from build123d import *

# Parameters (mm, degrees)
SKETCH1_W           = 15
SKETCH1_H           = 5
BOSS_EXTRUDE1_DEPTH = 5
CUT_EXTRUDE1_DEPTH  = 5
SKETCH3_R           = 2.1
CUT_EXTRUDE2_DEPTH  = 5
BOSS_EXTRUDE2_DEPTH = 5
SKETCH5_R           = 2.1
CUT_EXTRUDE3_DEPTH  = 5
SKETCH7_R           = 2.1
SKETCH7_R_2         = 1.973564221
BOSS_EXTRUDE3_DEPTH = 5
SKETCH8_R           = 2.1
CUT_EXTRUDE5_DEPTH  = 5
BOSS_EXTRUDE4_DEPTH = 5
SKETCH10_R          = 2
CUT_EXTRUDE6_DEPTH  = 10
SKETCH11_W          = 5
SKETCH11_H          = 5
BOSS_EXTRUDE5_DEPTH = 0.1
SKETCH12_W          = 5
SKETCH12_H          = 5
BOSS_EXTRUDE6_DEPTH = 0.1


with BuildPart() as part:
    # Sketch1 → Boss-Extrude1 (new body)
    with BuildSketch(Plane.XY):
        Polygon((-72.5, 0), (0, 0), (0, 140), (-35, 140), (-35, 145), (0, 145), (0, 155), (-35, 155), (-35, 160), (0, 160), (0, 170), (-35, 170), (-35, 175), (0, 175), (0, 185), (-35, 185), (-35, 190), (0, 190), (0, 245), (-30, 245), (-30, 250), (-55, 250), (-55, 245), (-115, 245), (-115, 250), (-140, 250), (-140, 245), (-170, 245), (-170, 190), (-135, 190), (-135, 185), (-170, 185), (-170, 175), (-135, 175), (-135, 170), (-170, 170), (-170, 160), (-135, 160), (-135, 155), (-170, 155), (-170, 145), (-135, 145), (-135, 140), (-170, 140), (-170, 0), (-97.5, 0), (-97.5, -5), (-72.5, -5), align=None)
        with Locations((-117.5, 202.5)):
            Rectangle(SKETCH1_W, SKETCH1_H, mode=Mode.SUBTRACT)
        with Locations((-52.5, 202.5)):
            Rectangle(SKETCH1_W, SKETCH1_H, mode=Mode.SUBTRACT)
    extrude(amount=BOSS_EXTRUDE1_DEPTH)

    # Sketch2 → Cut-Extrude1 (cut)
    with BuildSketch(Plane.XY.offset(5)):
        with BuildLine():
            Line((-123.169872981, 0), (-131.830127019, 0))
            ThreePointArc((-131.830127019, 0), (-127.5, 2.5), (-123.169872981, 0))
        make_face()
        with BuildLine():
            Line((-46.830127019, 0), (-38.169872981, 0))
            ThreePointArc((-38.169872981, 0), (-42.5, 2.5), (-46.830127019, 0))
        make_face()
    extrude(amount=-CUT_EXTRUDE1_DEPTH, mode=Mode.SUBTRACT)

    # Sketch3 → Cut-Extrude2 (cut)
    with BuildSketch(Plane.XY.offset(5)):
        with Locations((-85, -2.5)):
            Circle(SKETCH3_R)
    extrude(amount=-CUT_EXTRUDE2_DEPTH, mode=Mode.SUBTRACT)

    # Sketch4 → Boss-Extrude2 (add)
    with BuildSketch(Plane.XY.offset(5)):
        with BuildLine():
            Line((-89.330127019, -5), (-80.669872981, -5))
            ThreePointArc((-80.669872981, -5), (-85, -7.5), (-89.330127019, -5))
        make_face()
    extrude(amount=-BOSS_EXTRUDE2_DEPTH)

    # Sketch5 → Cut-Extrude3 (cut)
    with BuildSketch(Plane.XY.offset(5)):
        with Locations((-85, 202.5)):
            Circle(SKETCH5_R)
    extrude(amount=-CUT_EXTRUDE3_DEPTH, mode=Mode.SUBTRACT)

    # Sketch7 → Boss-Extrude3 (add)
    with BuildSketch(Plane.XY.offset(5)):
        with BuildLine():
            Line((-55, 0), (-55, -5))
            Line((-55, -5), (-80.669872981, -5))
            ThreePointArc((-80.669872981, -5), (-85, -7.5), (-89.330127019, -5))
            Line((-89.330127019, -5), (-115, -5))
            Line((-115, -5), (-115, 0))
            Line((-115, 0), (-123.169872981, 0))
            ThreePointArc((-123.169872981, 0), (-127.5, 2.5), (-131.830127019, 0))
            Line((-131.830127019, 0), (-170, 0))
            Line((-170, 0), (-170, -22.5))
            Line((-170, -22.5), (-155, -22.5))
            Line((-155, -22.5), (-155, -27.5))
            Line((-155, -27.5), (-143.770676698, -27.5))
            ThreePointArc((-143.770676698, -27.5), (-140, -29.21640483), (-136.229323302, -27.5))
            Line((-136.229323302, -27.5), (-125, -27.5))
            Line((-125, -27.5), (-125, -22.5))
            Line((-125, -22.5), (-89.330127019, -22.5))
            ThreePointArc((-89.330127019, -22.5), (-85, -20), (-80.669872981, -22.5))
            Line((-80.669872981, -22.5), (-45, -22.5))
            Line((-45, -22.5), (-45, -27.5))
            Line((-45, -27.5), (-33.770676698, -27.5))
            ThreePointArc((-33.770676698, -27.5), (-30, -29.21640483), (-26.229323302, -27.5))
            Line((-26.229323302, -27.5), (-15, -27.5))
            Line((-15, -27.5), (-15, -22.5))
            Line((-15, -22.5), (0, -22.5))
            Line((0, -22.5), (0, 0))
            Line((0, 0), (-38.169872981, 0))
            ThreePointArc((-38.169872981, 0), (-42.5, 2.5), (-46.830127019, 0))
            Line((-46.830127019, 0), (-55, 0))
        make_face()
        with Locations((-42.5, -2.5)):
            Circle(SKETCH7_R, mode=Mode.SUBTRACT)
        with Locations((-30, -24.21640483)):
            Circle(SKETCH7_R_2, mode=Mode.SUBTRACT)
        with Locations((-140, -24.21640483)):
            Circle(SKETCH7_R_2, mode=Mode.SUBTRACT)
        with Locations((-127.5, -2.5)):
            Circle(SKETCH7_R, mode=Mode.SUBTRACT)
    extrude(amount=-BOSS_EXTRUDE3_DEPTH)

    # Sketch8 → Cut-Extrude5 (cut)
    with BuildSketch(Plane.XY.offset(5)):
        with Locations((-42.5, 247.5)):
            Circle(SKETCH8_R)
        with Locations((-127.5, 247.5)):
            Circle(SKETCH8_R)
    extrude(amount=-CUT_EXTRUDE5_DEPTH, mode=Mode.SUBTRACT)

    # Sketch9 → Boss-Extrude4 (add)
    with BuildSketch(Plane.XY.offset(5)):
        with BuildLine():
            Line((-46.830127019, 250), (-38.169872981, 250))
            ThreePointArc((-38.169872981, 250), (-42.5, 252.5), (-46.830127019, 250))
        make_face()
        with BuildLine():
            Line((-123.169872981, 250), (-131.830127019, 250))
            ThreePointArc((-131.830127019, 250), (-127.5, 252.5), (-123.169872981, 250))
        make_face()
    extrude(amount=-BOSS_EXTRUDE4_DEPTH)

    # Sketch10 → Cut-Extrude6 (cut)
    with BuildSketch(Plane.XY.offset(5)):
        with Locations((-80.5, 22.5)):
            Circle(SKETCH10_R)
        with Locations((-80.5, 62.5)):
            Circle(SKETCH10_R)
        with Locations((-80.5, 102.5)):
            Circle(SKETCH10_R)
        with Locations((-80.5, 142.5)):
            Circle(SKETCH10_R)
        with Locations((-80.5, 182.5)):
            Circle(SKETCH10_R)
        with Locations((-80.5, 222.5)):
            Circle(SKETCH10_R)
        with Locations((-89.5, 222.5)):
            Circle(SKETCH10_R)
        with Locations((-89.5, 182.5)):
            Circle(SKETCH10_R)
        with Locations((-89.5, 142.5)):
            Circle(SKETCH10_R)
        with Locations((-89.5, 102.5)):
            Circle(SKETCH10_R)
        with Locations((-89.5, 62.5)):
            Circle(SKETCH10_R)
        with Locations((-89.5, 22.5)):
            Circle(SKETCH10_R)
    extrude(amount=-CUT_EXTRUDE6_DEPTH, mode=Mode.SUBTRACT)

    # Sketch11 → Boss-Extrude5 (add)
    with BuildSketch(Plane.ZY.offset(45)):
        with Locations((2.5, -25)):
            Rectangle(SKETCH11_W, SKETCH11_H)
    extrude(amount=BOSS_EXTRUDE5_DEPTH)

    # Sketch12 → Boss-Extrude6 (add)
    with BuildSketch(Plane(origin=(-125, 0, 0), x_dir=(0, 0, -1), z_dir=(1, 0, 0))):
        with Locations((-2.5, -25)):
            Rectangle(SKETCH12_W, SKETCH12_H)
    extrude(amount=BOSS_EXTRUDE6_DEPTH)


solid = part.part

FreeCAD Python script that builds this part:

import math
import FreeCAD as App
import Part
import Sketcher

V = App.Vector
Q = App.Units.Quantity

doc = App.newDocument("Part")
body = doc.addObject("PartDesign::Body", "Body")

# Sketch on XY plane
sketch1 = doc.addObject("Sketcher::SketchObject", "Sketch")
body.addObject(sketch1)
sketch1.AttachmentSupport = (doc.XY_Plane, [""])
sketch1.MapMode = "FlatFace"
sketch1.addGeometry(Part.LineSegment(V(-72, 0, 0), V(0, 0, 0)), False)
sketch1.addGeometry(Part.LineSegment(V(0, 0, 0), V(0, 140, 0)), False)
sketch1.addGeometry(Part.LineSegment(V(0, 140, 0), V(-35, 140, 0)), False)
sketch1.addGeometry(Part.LineSegment(V(-35, 140, 0), V(-35, 145, 0)), False)
sketch1.addGeometry(Part.LineSegment(V(-35, 145, 0), V(0, 145, 0)), False)
sketch1.addGeometry(Part.LineSegment(V(0, 145, 0), V(0, 155, 0)), False)
sketch1.addGeometry(Part.LineSegment(V(0, 155, 0), V(-35, 155, 0)), False)
sketch1.addGeometry(Part.LineSegment(V(-35, 155, 0), V(-35, 160, 0)), False)
sketch1.addGeometry(Part.LineSegment(V(-35, 160, 0), V(0, 160, 0)), False)
sketch1.addGeometry(Part.LineSegment(V(0, 160, 0), V(0, 170, 0)), False)
sketch1.addGeometry(Part.LineSegment(V(0, 170, 0), V(-35, 170, 0)), False)
sketch1.addGeometry(Part.LineSegment(V(-35, 170, 0), V(-35, 175, 0)), False)
sketch1.addGeometry(Part.LineSegment(V(-35, 175, 0), V(0, 175, 0)), False)
sketch1.addGeometry(Part.LineSegment(V(0, 175, 0), V(0, 185, 0)), False)
sketch1.addGeometry(Part.LineSegment(V(0, 185, 0), V(-35, 185, 0)), False)
sketch1.addGeometry(Part.LineSegment(V(-35, 185, 0), V(-35, 190, 0)), False)
sketch1.addGeometry(Part.LineSegment(V(-35, 190, 0), V(0, 190, 0)), False)
sketch1.addGeometry(Part.LineSegment(V(0, 190, 0), V(0, 245, 0)), False)
sketch1.addGeometry(Part.LineSegment(V(0, 245, 0), V(-30, 245, 0)), False)
sketch1.addGeometry(Part.LineSegment(V(-30, 245, 0), V(-30, 250, 0)), False)
sketch1.addGeometry(Part.LineSegment(V(-30, 250, 0), V(-55, 250, 0)), False)
sketch1.addGeometry(Part.LineSegment(V(-55, 250, 0), V(-55, 245, 0)), False)
sketch1.addGeometry(Part.LineSegment(V(-55, 245, 0), V(-115, 245, 0)), False)
sketch1.addGeometry(Part.LineSegment(V(-115, 245, 0), V(-115, 250, 0)), False)
sketch1.addGeometry(Part.LineSegment(V(-115, 250, 0), V(-140, 250, 0)), False)
sketch1.addGeometry(Part.LineSegment(V(-140, 250, 0), V(-140, 245, 0)), False)
sketch1.addGeometry(Part.LineSegment(V(-140, 245, 0), V(-170, 245, 0)), False)
sketch1.addGeometry(Part.LineSegment(V(-170, 245, 0), V(-170, 190, 0)), False)
sketch1.addGeometry(Part.LineSegment(V(-170, 190, 0), V(-135, 190, 0)), False)
sketch1.addGeometry(Part.LineSegment(V(-135, 190, 0), V(-135, 185, 0)), False)
sketch1.addGeometry(Part.LineSegment(V(-135, 185, 0), V(-170, 185, 0)), False)
sketch1.addGeometry(Part.LineSegment(V(-170, 185, 0), V(-170, 175, 0)), False)
sketch1.addGeometry(Part.LineSegment(V(-170, 175, 0), V(-135, 175, 0)), False)
sketch1.addGeometry(Part.LineSegment(V(-135, 175, 0), V(-135, 170, 0)), False)
sketch1.addGeometry(Part.LineSegment(V(-135, 170, 0), V(-170, 170, 0)), False)
sketch1.addGeometry(Part.LineSegment(V(-170, 170, 0), V(-170, 160, 0)), False)
sketch1.addGeometry(Part.LineSegment(V(-170, 160, 0), V(-135, 160, 0)), False)
sketch1.addGeometry(Part.LineSegment(V(-135, 160, 0), V(-135, 155, 0)), False)
sketch1.addGeometry(Part.LineSegment(V(-135, 155, 0), V(-170, 155, 0)), False)
sketch1.addGeometry(Part.LineSegment(V(-170, 155, 0), V(-170, 145, 0)), False)
sketch1.addGeometry(Part.LineSegment(V(-170, 145, 0), V(-135, 145, 0)), False)
sketch1.addGeometry(Part.LineSegment(V(-135, 145, 0), V(-135, 140, 0)), False)
sketch1.addGeometry(Part.LineSegment(V(-135, 140, 0), V(-170, 140, 0)), False)
sketch1.addGeometry(Part.LineSegment(V(-170, 140, 0), V(-170, 0, 0)), False)
sketch1.addGeometry(Part.LineSegment(V(-170, 0, 0), V(-98, 0, 0)), False)
sketch1.addGeometry(Part.LineSegment(V(-98, 0, 0), V(-98, -5, 0)), False)
sketch1.addGeometry(Part.LineSegment(V(-98, -5, 0), V(-72, -5, 0)), False)
sketch1.addGeometry(Part.LineSegment(V(-72, -5, 0), V(-72, 0, 0)), False)
sketch1.addGeometry(Part.LineSegment(V(-110, 200, 0), V(-125, 200, 0)), False)
sketch1.addGeometry(Part.LineSegment(V(-125, 200, 0), V(-125, 205, 0)), False)
sketch1.addGeometry(Part.LineSegment(V(-125, 205, 0), V(-110, 205, 0)), False)
sketch1.addGeometry(Part.LineSegment(V(-110, 205, 0), V(-110, 200, 0)), False)
sketch1.addGeometry(Part.LineSegment(V(-45, 200, 0), V(-60, 200, 0)), False)
sketch1.addGeometry(Part.LineSegment(V(-60, 200, 0), V(-60, 205, 0)), False)
sketch1.addGeometry(Part.LineSegment(V(-60, 205, 0), V(-45, 205, 0)), False)
sketch1.addGeometry(Part.LineSegment(V(-45, 205, 0), V(-45, 200, 0)), False)
sketch1.addConstraint(Sketcher.Constraint("Coincident", 0, 2, 1, 1))
sketch1.addConstraint(Sketcher.Constraint("Coincident", 1, 2, 2, 1))
sketch1.addConstraint(Sketcher.Constraint("Coincident", 2, 2, 3, 1))
sketch1.addConstraint(Sketcher.Constraint("Coincident", 3, 2, 4, 1))
sketch1.addConstraint(Sketcher.Constraint("Coincident", 4, 2, 5, 1))
sketch1.addConstraint(Sketcher.Constraint("Coincident", 5, 2, 6, 1))
sketch1.addConstraint(Sketcher.Constraint("Coincident", 6, 2, 7, 1))
sketch1.addConstraint(Sketcher.Constraint("Coincident", 7, 2, 8, 1))
sketch1.addConstraint(Sketcher.Constraint("Coincident", 8, 2, 9, 1))
sketch1.addConstraint(Sketcher.Constraint("Coincident", 9, 2, 10, 1))
sketch1.addConstraint(Sketcher.Constraint("Coincident", 10, 2, 11, 1))
sketch1.addConstraint(Sketcher.Constraint("Coincident", 11, 2, 12, 1))
sketch1.addConstraint(Sketcher.Constraint("Coincident", 12, 2, 13, 1))
sketch1.addConstraint(Sketcher.Constraint("Coincident", 13, 2, 14, 1))
sketch1.addConstraint(Sketcher.Constraint("Coincident", 14, 2, 15, 1))
sketch1.addConstraint(Sketcher.Constraint("Coincident", 15, 2, 16, 1))
sketch1.addConstraint(Sketcher.Constraint("Coincident", 16, 2, 17, 1))
sketch1.addConstraint(Sketcher.Constraint("Coincident", 17, 2, 18, 1))
sketch1.addConstraint(Sketcher.Constraint("Coincident", 18, 2, 19, 1))
sketch1.addConstraint(Sketcher.Constraint("Coincident", 19, 2, 20, 1))
sketch1.addConstraint(Sketcher.Constraint("Coincident", 20, 2, 21, 1))
sketch1.addConstraint(Sketcher.Constraint("Coincident", 21, 2, 22, 1))
sketch1.addConstraint(Sketcher.Constraint("Coincident", 22, 2, 23, 1))
sketch1.addConstraint(Sketcher.Constraint("Coincident", 23, 2, 24, 1))
sketch1.addConstraint(Sketcher.Constraint("Coincident", 24, 2, 25, 1))
sketch1.addConstraint(Sketcher.Constraint("Coincident", 25, 2, 26, 1))
sketch1.addConstraint(Sketcher.Constraint("Coincident", 26, 2, 27, 1))
sketch1.addConstraint(Sketcher.Constraint("Coincident", 27, 2, 28, 1))
sketch1.addConstraint(Sketcher.Constraint("Coincident", 28, 2, 29, 1))
sketch1.addConstraint(Sketcher.Constraint("Coincident", 29, 2, 30, 1))
sketch1.addConstraint(Sketcher.Constraint("Coincident", 30, 2, 31, 1))
sketch1.addConstraint(Sketcher.Constraint("Coincident", 31, 2, 32, 1))
sketch1.addConstraint(Sketcher.Constraint("Coincident", 32, 2, 33, 1))
sketch1.addConstraint(Sketcher.Constraint("Coincident", 33, 2, 34, 1))
sketch1.addConstraint(Sketcher.Constraint("Coincident", 34, 2, 35, 1))
sketch1.addConstraint(Sketcher.Constraint("Coincident", 35, 2, 36, 1))
sketch1.addConstraint(Sketcher.Constraint("Coincident", 36, 2, 37, 1))
sketch1.addConstraint(Sketcher.Constraint("Coincident", 37, 2, 38, 1))
sketch1.addConstraint(Sketcher.Constraint("Coincident", 38, 2, 39, 1))
sketch1.addConstraint(Sketcher.Constraint("Coincident", 39, 2, 40, 1))
sketch1.addConstraint(Sketcher.Constraint("Coincident", 40, 2, 41, 1))
sketch1.addConstraint(Sketcher.Constraint("Coincident", 41, 2, 42, 1))
sketch1.addConstraint(Sketcher.Constraint("Coincident", 42, 2, 43, 1))
sketch1.addConstraint(Sketcher.Constraint("Coincident", 43, 2, 44, 1))
sketch1.addConstraint(Sketcher.Constraint("Coincident", 44, 2, 45, 1))
sketch1.addConstraint(Sketcher.Constraint("Coincident", 45, 2, 46, 1))
sketch1.addConstraint(Sketcher.Constraint("Coincident", 46, 2, 47, 1))
sketch1.addConstraint(Sketcher.Constraint("Coincident", 47, 2, 0, 1))
sketch1.addConstraint(Sketcher.Constraint("Coincident", 48, 2, 49, 1))
sketch1.addConstraint(Sketcher.Constraint("Coincident", 49, 2, 50, 1))
sketch1.addConstraint(Sketcher.Constraint("Coincident", 50, 2, 51, 1))
sketch1.addConstraint(Sketcher.Constraint("Coincident", 51, 2, 48, 1))
sketch1.addConstraint(Sketcher.Constraint("Coincident", 52, 2, 53, 1))
sketch1.addConstraint(Sketcher.Constraint("Coincident", 53, 2, 54, 1))
sketch1.addConstraint(Sketcher.Constraint("Coincident", 54, 2, 55, 1))
sketch1.addConstraint(Sketcher.Constraint("Coincident", 55, 2, 52, 1))
sketch1.addConstraint(Sketcher.Constraint("Horizontal", 0))
sketch1.addConstraint(Sketcher.Constraint("Vertical", 1))
sketch1.addConstraint(Sketcher.Constraint("Horizontal", 2))
sketch1.addConstraint(Sketcher.Constraint("Vertical", 3))
sketch1.addConstraint(Sketcher.Constraint("Horizontal", 4))
sketch1.addConstraint(Sketcher.Constraint("Vertical", 5))
sketch1.addConstraint(Sketcher.Constraint("Horizontal", 6))
sketch1.addConstraint(Sketcher.Constraint("Vertical", 7))
sketch1.addConstraint(Sketcher.Constraint("Horizontal", 8))
sketch1.addConstraint(Sketcher.Constraint("Vertical", 9))
sketch1.addConstraint(Sketcher.Constraint("Horizontal", 10))
sketch1.addConstraint(Sketcher.Constraint("Vertical", 11))
sketch1.addConstraint(Sketcher.Constraint("Horizontal", 12))
sketch1.addConstraint(Sketcher.Constraint("Vertical", 13))
sketch1.addConstraint(Sketcher.Constraint("Horizontal", 14))
sketch1.addConstraint(Sketcher.Constraint("Vertical", 15))
sketch1.addConstraint(Sketcher.Constraint("Horizontal", 16))
sketch1.addConstraint(Sketcher.Constraint("Vertical", 17))
sketch1.addConstraint(Sketcher.Constraint("Horizontal", 18))
sketch1.addConstraint(Sketcher.Constraint("Vertical", 19))
sketch1.addConstraint(Sketcher.Constraint("Horizontal", 20))
sketch1.addConstraint(Sketcher.Constraint("Vertical", 21))
sketch1.addConstraint(Sketcher.Constraint("Horizontal", 22))
sketch1.addConstraint(Sketcher.Constraint("Vertical", 23))
sketch1.addConstraint(Sketcher.Constraint("Horizontal", 24))
sketch1.addConstraint(Sketcher.Constraint("Vertical", 25))
sketch1.addConstraint(Sketcher.Constraint("Horizontal", 26))
sketch1.addConstraint(Sketcher.Constraint("Vertical", 27))
sketch1.addConstraint(Sketcher.Constraint("Horizontal", 28))
sketch1.addConstraint(Sketcher.Constraint("Vertical", 29))
sketch1.addConstraint(Sketcher.Constraint("Horizontal", 30))
sketch1.addConstraint(Sketcher.Constraint("Vertical", 31))
sketch1.addConstraint(Sketcher.Constraint("Horizontal", 32))
sketch1.addConstraint(Sketcher.Constraint("Vertical", 33))
sketch1.addConstraint(Sketcher.Constraint("Horizontal", 34))
sketch1.addConstraint(Sketcher.Constraint("Vertical", 35))
sketch1.addConstraint(Sketcher.Constraint("Horizontal", 36))
sketch1.addConstraint(Sketcher.Constraint("Vertical", 37))
sketch1.addConstraint(Sketcher.Constraint("Horizontal", 38))
sketch1.addConstraint(Sketcher.Constraint("Vertical", 39))
sketch1.addConstraint(Sketcher.Constraint("Horizontal", 40))
sketch1.addConstraint(Sketcher.Constraint("Vertical", 41))
sketch1.addConstraint(Sketcher.Constraint("Horizontal", 42))
sketch1.addConstraint(Sketcher.Constraint("Vertical", 43))
sketch1.addConstraint(Sketcher.Constraint("Horizontal", 44))
sketch1.addConstraint(Sketcher.Constraint("Vertical", 45))
sketch1.addConstraint(Sketcher.Constraint("Horizontal", 46))
sketch1.addConstraint(Sketcher.Constraint("Vertical", 47))
sketch1.addConstraint(Sketcher.Constraint("Horizontal", 48))
sketch1.addConstraint(Sketcher.Constraint("Vertical", 49))
sketch1.addConstraint(Sketcher.Constraint("Horizontal", 50))
sketch1.addConstraint(Sketcher.Constraint("Vertical", 51))
sketch1.addConstraint(Sketcher.Constraint("Horizontal", 52))
sketch1.addConstraint(Sketcher.Constraint("Vertical", 53))
sketch1.addConstraint(Sketcher.Constraint("Horizontal", 54))
sketch1.addConstraint(Sketcher.Constraint("Vertical", 55))
sketch1.addConstraint(Sketcher.Constraint("Coincident", 0, 2, -1, 1))
sketch1.addConstraint(Sketcher.Constraint("PointOnObject", 4, 2, -2))
sketch1.addConstraint(Sketcher.Constraint("PointOnObject", 8, 2, -2))
sketch1.addConstraint(Sketcher.Constraint("PointOnObject", 12, 2, -2))
sketch1.addConstraint(Sketcher.Constraint("PointOnObject", 16, 2, -2))
sketch1.addConstraint(Sketcher.Constraint("PointOnObject", 43, 2, -1))
sketch1.addConstraint(Sketcher.Constraint("Horizontal", 18, 2, 21, 2))
sketch1.addConstraint(Sketcher.Constraint("Horizontal", 20, 2, 23, 2))
sketch1.addConstraint(Sketcher.Constraint("Horizontal", 22, 2, 25, 2))
sketch1.addConstraint(Sketcher.Constraint("Horizontal", 16, 2, 27, 2))
sketch1.addConstraint(Sketcher.Constraint("Horizontal", 14, 2, 29, 2))
sketch1.addConstraint(Sketcher.Constraint("Horizontal", 12, 2, 31, 2))
sketch1.addConstraint(Sketcher.Constraint("Horizontal", 10, 2, 33, 2))
sketch1.addConstraint(Sketcher.Constraint("Horizontal", 8, 2, 35, 2))
sketch1.addConstraint(Sketcher.Constraint("Horizontal", 6, 2, 37, 2))
sketch1.addConstraint(Sketcher.Constraint("Horizontal", 4, 2, 39, 2))
sketch1.addConstraint(Sketcher.Constraint("Horizontal", 2, 2, 41, 2))
sketch1.addConstraint(Sketcher.Constraint("Horizontal", 51, 2, 52, 2))
sketch1.addConstraint(Sketcher.Constraint("Horizontal", 50, 2, 53, 2))
sketch1.addConstraint(Sketcher.Constraint("Vertical", 3, 2, 6, 2))
sketch1.addConstraint(Sketcher.Constraint("Vertical", 7, 2, 10, 2))
sketch1.addConstraint(Sketcher.Constraint("Vertical", 11, 2, 14, 2))
sketch1.addConstraint(Sketcher.Constraint("Vertical", 27, 2, 30, 2))
sketch1.addConstraint(Sketcher.Constraint("Vertical", 29, 2, 32, 2))
sketch1.addConstraint(Sketcher.Constraint("Vertical", 31, 2, 34, 2))
sketch1.addConstraint(Sketcher.Constraint("Vertical", 33, 2, 36, 2))
sketch1.addConstraint(Sketcher.Constraint("Vertical", 35, 2, 38, 2))
sketch1.addConstraint(Sketcher.Constraint("Vertical", 37, 2, 40, 2))
sketch1.addConstraint(Sketcher.Constraint("Vertical", 39, 2, 42, 2))
sketch1.addConstraint(Sketcher.Constraint("Equal", 20, 24))
sketch1.addConstraint(Sketcher.Constraint("Equal", 18, 26))
sketch1.addConstraint(Sketcher.Constraint("Equal", 16, 28))
sketch1.addConstraint(Sketcher.Constraint("Equal", 0, 44))
sketch1.addConstraint(Sketcher.Constraint("Equal", 24, 46))
sketch1.addConstraint(Sketcher.Constraint("Equal", 50, 52))
sketch1.addConstraint(Sketcher.Constraint("Equal", 3, 7))
sketch1.addConstraint(Sketcher.Constraint("Equal", 5, 9))
sketch1.addConstraint(Sketcher.Constraint("Equal", 7, 11))
sketch1.addConstraint(Sketcher.Constraint("Equal", 9, 13))
sketch1.addConstraint(Sketcher.Constraint("Equal", 11, 15))
sketch1.addConstraint(Sketcher.Constraint("Equal", 15, 19))
sketch1.addConstraint(Sketcher.Constraint("Equal", 41, 45))
sketch1.addConstraint(Sketcher.Constraint("Equal", 47, 49))
sketch1.addConstraint(Sketcher.Constraint("DistanceX", 2, 2, 2, 1, Q("35 mm")))
sketch1.addConstraint(Sketcher.Constraint("DistanceX", 18, 2, 18, 1, Q("30 mm")))
sketch1.addConstraint(Sketcher.Constraint("DistanceX", 20, 2, 20, 1, Q("25 mm")))
sketch1.addConstraint(Sketcher.Constraint("DistanceX", 22, 2, 22, 1, Q("60 mm")))
sketch1.addConstraint(Sketcher.Constraint("DistanceX", 48, 2, 48, 1, Q("15 mm")))
sketch1.addConstraint(Sketcher.Constraint("DistanceY", 1, 1, 1, 2, Q("140 mm")))
sketch1.addConstraint(Sketcher.Constraint("DistanceY", 3, 1, 3, 2, Q("5 mm")))
sketch1.addConstraint(Sketcher.Constraint("DistanceY", 5, 1, 5, 2, Q("10 mm")))
sketch1.addConstraint(Sketcher.Constraint("DistanceY", 17, 1, 17, 2, Q("55 mm")))
sketch1.addConstraint(Sketcher.Constraint("DistanceX", 48, 2, -1, 1, Q("125 mm")))
sketch1.addConstraint(Sketcher.Constraint("DistanceY", -1, 1, 48, 2, Q("200 mm")))
sketch1.addConstraint(Sketcher.Constraint("DistanceX", 52, 2, -1, 1, Q("60 mm")))
pad1 = doc.addObject("PartDesign::Pad", "Pad")
body.addObject(pad1)
pad1.Profile = sketch1
pad1.Length = 5

# Sketch on XY plane
sketch2 = doc.addObject("Sketcher::SketchObject", "Sketch001")
body.addObject(sketch2)
sketch2.AttachmentSupport = (doc.XY_Plane, [""])
sketch2.MapMode = "FlatFace"
sketch2.AttachmentOffset = App.Placement(V(0, 0, 5), App.Rotation())
sketch2.addGeometry(Part.LineSegment(V(-132, 0, 0), V(-123, 0, 0)), False)
sketch2.addGeometry(Part.ArcOfCircle(Part.Circle(V(-128, -2, 0), V(0, 0, 1), 5), math.radians(30), math.radians(150)), False)
sketch2.addGeometry(Part.LineSegment(V(-47, 0, 0), V(-38, 0, 0)), False)
sketch2.addGeometry(Part.ArcOfCircle(Part.Circle(V(-42, -2, 0), V(0, 0, 1), 5), math.radians(30), math.radians(150)), False)
sketch2.addConstraint(Sketcher.Constraint("Coincident", 0, 1, 1, 2))
sketch2.addConstraint(Sketcher.Constraint("Coincident", 1, 1, 0, 2))
sketch2.addConstraint(Sketcher.Constraint("Coincident", 2, 1, 3, 2))
sketch2.addConstraint(Sketcher.Constraint("Coincident", 3, 1, 2, 2))
sketch2.addConstraint(Sketcher.Constraint("Horizontal", 0))
sketch2.addConstraint(Sketcher.Constraint("Horizontal", 2))
sketch2.addConstraint(Sketcher.Constraint("Equal", 1, 3))
sketch2.addConstraint(Sketcher.Constraint("PointOnObject", 0, 1, -1))
sketch2.addConstraint(Sketcher.Constraint("PointOnObject", 2, 1, -1))
sketch2.addConstraint(Sketcher.Constraint("Horizontal", 1, 3, 3, 3))
sketch2.addConstraint(Sketcher.Constraint("Radius", 1, Q("5 mm")))
sketch2.addConstraint(Sketcher.Constraint("DistanceX", 1, 3, 3, 3, Q("85 mm")))
sketch2.addConstraint(Sketcher.Constraint("DistanceX", 1, 3, -1, 1, Q("127.5 mm")))
sketch2.addConstraint(Sketcher.Constraint("DistanceY", 1, 3, -1, 1, Q("2.5 mm")))
pocket1 = doc.addObject("PartDesign::Pocket", "Pocket")
body.addObject(pocket1)
pocket1.Profile = sketch2
pocket1.Length = 5

# Sketch on XY plane
sketch3 = doc.addObject("Sketcher::SketchObject", "Sketch002")
body.addObject(sketch3)
sketch3.AttachmentSupport = (doc.XY_Plane, [""])
sketch3.MapMode = "FlatFace"
sketch3.AttachmentOffset = App.Placement(V(0, 0, 5), App.Rotation())
sketch3.addGeometry(Part.Circle(V(-85, -2.5, 0), V(0, 0, 1), 2.1), False)
sketch3.addConstraint(Sketcher.Constraint("Diameter", 0, Q("4.2 mm")))
sketch3.addConstraint(Sketcher.Constraint("DistanceX", 0, 3, -1, 1, Q("85 mm")))
sketch3.addConstraint(Sketcher.Constraint("DistanceY", 0, 3, -1, 1, Q("2.5 mm")))
pocket2 = doc.addObject("PartDesign::Pocket", "Pocket001")
body.addObject(pocket2)
pocket2.Profile = sketch3
pocket2.Length = 5

# Sketch on XY plane
sketch4 = doc.addObject("Sketcher::SketchObject", "Sketch003")
body.addObject(sketch4)
sketch4.AttachmentSupport = (doc.XY_Plane, [""])
sketch4.MapMode = "FlatFace"
sketch4.AttachmentOffset = App.Placement(V(0, 0, 5), App.Rotation())
sketch4.addGeometry(Part.LineSegment(V(-81, -5, 0), V(-89, -5, 0)), False)
sketch4.addGeometry(Part.ArcOfCircle(Part.Circle(V(-85, -2, 0), V(0, 0, 1), 5), math.radians(-150), math.radians(-30)), False)
sketch4.addConstraint(Sketcher.Constraint("Coincident", 0, 1, 1, 2))
sketch4.addConstraint(Sketcher.Constraint("Coincident", 1, 1, 0, 2))
sketch4.addConstraint(Sketcher.Constraint("Horizontal", 0))
sketch4.addConstraint(Sketcher.Constraint("Radius", 1, Q("5 mm")))
sketch4.addConstraint(Sketcher.Constraint("DistanceX", 1, 3, -1, 1, Q("85 mm")))
sketch4.addConstraint(Sketcher.Constraint("DistanceY", 0, 1, -1, 1, Q("5 mm")))
sketch4.addConstraint(Sketcher.Constraint("DistanceY", 1, 3, -1, 1, Q("2.5 mm")))
pad2 = doc.addObject("PartDesign::Pad", "Pad001")
body.addObject(pad2)
pad2.Profile = sketch4
pad2.Length = 5
pad2.Reversed = True

# Sketch on XY plane
sketch5 = doc.addObject("Sketcher::SketchObject", "Sketch004")
body.addObject(sketch5)
sketch5.AttachmentSupport = (doc.XY_Plane, [""])
sketch5.MapMode = "FlatFace"
sketch5.AttachmentOffset = App.Placement(V(0, 0, 5), App.Rotation())
sketch5.addGeometry(Part.Circle(V(-85, 202.5, 0), V(0, 0, 1), 2.1), False)
sketch5.addConstraint(Sketcher.Constraint("Diameter", 0, Q("4.2 mm")))
sketch5.addConstraint(Sketcher.Constraint("DistanceX", 0, 3, -1, 1, Q("85 mm")))
sketch5.addConstraint(Sketcher.Constraint("DistanceY", -1, 1, 0, 3, Q("202.5 mm")))
pocket3 = doc.addObject("PartDesign::Pocket", "Pocket002")
body.addObject(pocket3)
pocket3.Profile = sketch5
pocket3.Length = 5

# Sketch on XY plane
sketch6 = doc.addObject("Sketcher::SketchObject", "Sketch005")
body.addObject(sketch6)
sketch6.AttachmentSupport = (doc.XY_Plane, [""])
sketch6.MapMode = "FlatFace"
sketch6.AttachmentOffset = App.Placement(V(0, 0, 5), App.Rotation())
sketch6.addGeometry(Part.LineSegment(V(-55, 0, 0), V(-55, -5, 0)), False)
sketch6.addGeometry(Part.LineSegment(V(-55, -5, 0), V(-80.7, -5, 0)), False)
sketch6.addGeometry(Part.ArcOfCircle(Part.Circle(V(-85, -2.5, 0), V(0, 0, 1), 5), math.radians(-150), math.radians(-30)), False)
sketch6.addGeometry(Part.LineSegment(V(-89.3, -5, 0), V(-115, -5, 0)), False)
sketch6.addGeometry(Part.LineSegment(V(-115, -5, 0), V(-115, 0, 0)), False)
sketch6.addGeometry(Part.LineSegment(V(-115, 0, 0), V(-123.2, 0, 0)), False)
sketch6.addGeometry(Part.ArcOfCircle(Part.Circle(V(-127.5, -2.5, 0), V(0, 0, 1), 5), math.radians(30), math.radians(150)), False)
sketch6.addGeometry(Part.LineSegment(V(-131.8, 0, 0), V(-170, 0, 0)), False)
sketch6.addGeometry(Part.LineSegment(V(-170, 0, 0), V(-170, -22.5, 0)), False)
sketch6.addGeometry(Part.LineSegment(V(-170, -22.5, 0), V(-155, -22.5, 0)), False)
sketch6.addGeometry(Part.LineSegment(V(-155, -22.5, 0), V(-155, -27.5, 0)), False)
sketch6.addGeometry(Part.LineSegment(V(-155, -27.5, 0), V(-143.8, -27.5, 0)), False)
sketch6.addGeometry(Part.ArcOfCircle(Part.Circle(V(-140, -24.2, 0), V(0, 0, 1), 5), math.radians(-139), math.radians(-41)), False)
sketch6.addGeometry(Part.LineSegment(V(-136.2, -27.5, 0), V(-125, -27.5, 0)), False)
sketch6.addGeometry(Part.LineSegment(V(-125, -27.5, 0), V(-125, -22.5, 0)), False)
sketch6.addGeometry(Part.LineSegment(V(-125, -22.5, 0), V(-89.3, -22.5, 0)), False)
sketch6.addGeometry(Part.ArcOfCircle(Part.Circle(V(-85, -25, 0), V(0, 0, 1), 5), math.radians(30), math.radians(150)), False)
sketch6.addGeometry(Part.LineSegment(V(-80.7, -22.5, 0), V(-45, -22.5, 0)), False)
sketch6.addGeometry(Part.LineSegment(V(-45, -22.5, 0), V(-45, -27.5, 0)), False)
sketch6.addGeometry(Part.LineSegment(V(-45, -27.5, 0), V(-33.8, -27.5, 0)), False)
sketch6.addGeometry(Part.ArcOfCircle(Part.Circle(V(-30, -24.2, 0), V(0, 0, 1), 5), math.radians(-139), math.radians(-41)), False)
sketch6.addGeometry(Part.LineSegment(V(-26.2, -27.5, 0), V(-15, -27.5, 0)), False)
sketch6.addGeometry(Part.LineSegment(V(-15, -27.5, 0), V(-15, -22.5, 0)), False)
sketch6.addGeometry(Part.LineSegment(V(-15, -22.5, 0), V(0, -22.5, 0)), False)
sketch6.addGeometry(Part.LineSegment(V(0, -22.5, 0), V(0, 0, 0)), False)
sketch6.addGeometry(Part.LineSegment(V(0, 0, 0), V(-38.2, 0, 0)), False)
sketch6.addGeometry(Part.ArcOfCircle(Part.Circle(V(-42.5, -2.5, 0), V(0, 0, 1), 5), math.radians(30), math.radians(150)), False)
sketch6.addGeometry(Part.LineSegment(V(-46.8, 0, 0), V(-55, 0, 0)), False)
sketch6.addGeometry(Part.Circle(V(-140, -24.2, 0), V(0, 0, 1), 2), False)
sketch6.addGeometry(Part.Circle(V(-30, -24.2, 0), V(0, 0, 1), 2), False)
sketch6.addGeometry(Part.Circle(V(-127.5, -2.5, 0), V(0, 0, 1), 2.1), False)
sketch6.addGeometry(Part.Circle(V(-42.5, -2.5, 0), V(0, 0, 1), 2.1), False)
sketch6.addConstraint(Sketcher.Constraint("Coincident", 0, 2, 1, 1))
sketch6.addConstraint(Sketcher.Constraint("Coincident", 1, 2, 2, 2))
sketch6.addConstraint(Sketcher.Constraint("Coincident", 2, 1, 3, 1))
sketch6.addConstraint(Sketcher.Constraint("Coincident", 3, 2, 4, 1))
sketch6.addConstraint(Sketcher.Constraint("Coincident", 4, 2, 5, 1))
sketch6.addConstraint(Sketcher.Constraint("Coincident", 5, 2, 6, 1))
sketch6.addConstraint(Sketcher.Constraint("Coincident", 6, 2, 7, 1))
sketch6.addConstraint(Sketcher.Constraint("Coincident", 7, 2, 8, 1))
sketch6.addConstraint(Sketcher.Constraint("Coincident", 8, 2, 9, 1))
sketch6.addConstraint(Sketcher.Constraint("Coincident", 9, 2, 10, 1))
sketch6.addConstraint(Sketcher.Constraint("Coincident", 10, 2, 11, 1))
sketch6.addConstraint(Sketcher.Constraint("Coincident", 11, 2, 12, 1))
sketch6.addConstraint(Sketcher.Constraint("Coincident", 12, 2, 13, 1))
sketch6.addConstraint(Sketcher.Constraint("Coincident", 13, 2, 14, 1))
sketch6.addConstraint(Sketcher.Constraint("Coincident", 14, 2, 15, 1))
sketch6.addConstraint(Sketcher.Constraint("Coincident", 15, 2, 16, 2))
sketch6.addConstraint(Sketcher.Constraint("Coincident", 16, 1, 17, 1))
sketch6.addConstraint(Sketcher.Constraint("Coincident", 17, 2, 18, 1))
sketch6.addConstraint(Sketcher.Constraint("Coincident", 18, 2, 19, 1))
sketch6.addConstraint(Sketcher.Constraint("Coincident", 19, 2, 20, 1))
sketch6.addConstraint(Sketcher.Constraint("Coincident", 20, 2, 21, 1))
sketch6.addConstraint(Sketcher.Constraint("Coincident", 21, 2, 22, 1))
sketch6.addConstraint(Sketcher.Constraint("Coincident", 22, 2, 23, 1))
sketch6.addConstraint(Sketcher.Constraint("Coincident", 23, 2, 24, 1))
sketch6.addConstraint(Sketcher.Constraint("Coincident", 24, 2, 25, 1))
sketch6.addConstraint(Sketcher.Constraint("Coincident", 25, 2, 26, 1))
sketch6.addConstraint(Sketcher.Constraint("Coincident", 26, 2, 27, 1))
sketch6.addConstraint(Sketcher.Constraint("Coincident", 27, 2, 0, 1))
sketch6.addConstraint(Sketcher.Constraint("Vertical", 0))
sketch6.addConstraint(Sketcher.Constraint("Horizontal", 1))
sketch6.addConstraint(Sketcher.Constraint("Horizontal", 3))
sketch6.addConstraint(Sketcher.Constraint("Vertical", 4))
sketch6.addConstraint(Sketcher.Constraint("Horizontal", 5))
sketch6.addConstraint(Sketcher.Constraint("Horizontal", 7))
sketch6.addConstraint(Sketcher.Constraint("Vertical", 8))
sketch6.addConstraint(Sketcher.Constraint("Horizontal", 9))
sketch6.addConstraint(Sketcher.Constraint("Vertical", 10))
sketch6.addConstraint(Sketcher.Constraint("Horizontal", 11))
sketch6.addConstraint(Sketcher.Constraint("Horizontal", 13))
sketch6.addConstraint(Sketcher.Constraint("Vertical", 14))
sketch6.addConstraint(Sketcher.Constraint("Horizontal", 15))
sketch6.addConstraint(Sketcher.Constraint("Horizontal", 17))
sketch6.addConstraint(Sketcher.Constraint("Vertical", 18))
sketch6.addConstraint(Sketcher.Constraint("Horizontal", 19))
sketch6.addConstraint(Sketcher.Constraint("Horizontal", 21))
sketch6.addConstraint(Sketcher.Constraint("Vertical", 22))
sketch6.addConstraint(Sketcher.Constraint("Horizontal", 23))
sketch6.addConstraint(Sketcher.Constraint("Vertical", 24))
sketch6.addConstraint(Sketcher.Constraint("Horizontal", 25))
sketch6.addConstraint(Sketcher.Constraint("Horizontal", 27))
sketch6.addConstraint(Sketcher.Constraint("Coincident", 24, 2, -1, 1))
sketch6.addConstraint(Sketcher.Constraint("Coincident", 28, 3, 12, 3))
sketch6.addConstraint(Sketcher.Constraint("Coincident", 29, 3, 20, 3))
sketch6.addConstraint(Sketcher.Constraint("Coincident", 30, 3, 6, 3))
sketch6.addConstraint(Sketcher.Constraint("Coincident", 31, 3, 26, 3))
sketch6.addConstraint(Sketcher.Constraint("Equal", 2, 6))
sketch6.addConstraint(Sketcher.Constraint("Equal", 6, 12))
sketch6.addConstraint(Sketcher.Constraint("Equal", 12, 16))
sketch6.addConstraint(Sketcher.Constraint("Equal", 16, 20))
sketch6.addConstraint(Sketcher.Constraint("Equal", 20, 26))
sketch6.addConstraint(Sketcher.Constraint("Equal", 28, 29))
sketch6.addConstraint(Sketcher.Constraint("Equal", 30, 31))
sketch6.addConstraint(Sketcher.Constraint("PointOnObject", 4, 2, -1))
sketch6.addConstraint(Sketcher.Constraint("PointOnObject", 6, 2, -1))
sketch6.addConstraint(Sketcher.Constraint("PointOnObject", 26, 2, -1))
sketch6.addConstraint(Sketcher.Constraint("Horizontal", 2, 3, 6, 3))
sketch6.addConstraint(Sketcher.Constraint("Horizontal", 12, 3, 20, 3))
sketch6.addConstraint(Sketcher.Constraint("Horizontal", 6, 3, 26, 3))
sketch6.addConstraint(Sketcher.Constraint("Horizontal", 1, 2, 2, 1))
sketch6.addConstraint(Sketcher.Constraint("Horizontal", 11, 2, 12, 2))
sketch6.addConstraint(Sketcher.Constraint("Horizontal", 9, 2, 14, 2))
sketch6.addConstraint(Sketcher.Constraint("Horizontal", 15, 2, 16, 1))
sketch6.addConstraint(Sketcher.Constraint("Horizontal", 13, 2, 18, 2))
sketch6.addConstraint(Sketcher.Constraint("Horizontal", 19, 2, 20, 2))
sketch6.addConstraint(Sketcher.Constraint("Horizontal", 17, 2, 22, 2))
sketch6.addConstraint(Sketcher.Constraint("Vertical", 2, 3, 16, 3))
sketch6.addConstraint(Sketcher.Constraint("Vertical", 2, 1, 15, 2))
sketch6.addConstraint(Sketcher.Constraint("Equal", 1, 3))
sketch6.addConstraint(Sketcher.Constraint("Equal", 11, 13))
sketch6.addConstraint(Sketcher.Constraint("Equal", 15, 17))
sketch6.addConstraint(Sketcher.Constraint("Equal", 13, 19))
sketch6.addConstraint(Sketcher.Constraint("Equal", 19, 21))
sketch6.addConstraint(Sketcher.Constraint("Equal", 9, 23))
sketch6.addConstraint(Sketcher.Constraint("Equal", 7, 25))
sketch6.addConstraint(Sketcher.Constraint("Equal", 4, 10))
sketch6.addConstraint(Sketcher.Constraint("Radius", 2, Q("5 mm")))
sketch6.addConstraint(Sketcher.Constraint("Diameter", 30, Q("4.2 mm")))
sketch6.addConstraint(Sketcher.Constraint("DistanceX", 9, 1, 9, 2, Q("15 mm")))
sketch6.addConstraint(Sketcher.Constraint("DistanceY", 0, 2, 0, 1, Q("5 mm")))
sketch6.addConstraint(Sketcher.Constraint("DistanceY", 8, 2, 8, 1, Q("22.5 mm")))
sketch6.addConstraint(Sketcher.Constraint("DistanceX", 2, 3, -1, 1, Q("85 mm")))
sketch6.addConstraint(Sketcher.Constraint("DistanceX", 12, 3, -1, 1, Q("140 mm")))
sketch6.addConstraint(Sketcher.Constraint("DistanceY", 16, 3, -1, 1, Q("25 mm")))
sketch6.addConstraint(Sketcher.Constraint("DistanceX", 0, 2, -1, 1, Q("55 mm")))
sketch6.addConstraint(Sketcher.Constraint("DistanceX", 6, 3, 26, 3, Q("85 mm")))
sketch6.addConstraint(Sketcher.Constraint("Diameter", 28, Q("3.947128 mm")))
sketch6.addConstraint(Sketcher.Constraint("DistanceX", 11, 1, 11, 2, Q("11.229323 mm")))
pad3 = doc.addObject("PartDesign::Pad", "Pad002")
body.addObject(pad3)
pad3.Profile = sketch6
pad3.Length = 5
pad3.Reversed = True

# Sketch on XY plane
sketch7 = doc.addObject("Sketcher::SketchObject", "Sketch006")
body.addObject(sketch7)
sketch7.AttachmentSupport = (doc.XY_Plane, [""])
sketch7.MapMode = "FlatFace"
sketch7.AttachmentOffset = App.Placement(V(0, 0, 5), App.Rotation())
sketch7.addGeometry(Part.Circle(V(-42.5, 247.5, 0), V(0, 0, 1), 2.1), False)
sketch7.addGeometry(Part.Circle(V(-127.5, 247.5, 0), V(0, 0, 1), 2.1), False)
sketch7.addConstraint(Sketcher.Constraint("Equal", 0, 1))
sketch7.addConstraint(Sketcher.Constraint("Horizontal", 0, 3, 1, 3))
sketch7.addConstraint(Sketcher.Constraint("Diameter", 0, Q("4.2 mm")))
sketch7.addConstraint(Sketcher.Constraint("DistanceX", 1, 3, 0, 3, Q("85 mm")))
sketch7.addConstraint(Sketcher.Constraint("DistanceX", 0, 3, -1, 1, Q("42.5 mm")))
sketch7.addConstraint(Sketcher.Constraint("DistanceY", -1, 1, 0, 3, Q("247.5 mm")))
pocket4 = doc.addObject("PartDesign::Pocket", "Pocket003")
body.addObject(pocket4)
pocket4.Profile = sketch7
pocket4.Length = 5

# Sketch on XY plane
sketch8 = doc.addObject("Sketcher::SketchObject", "Sketch007")
body.addObject(sketch8)
sketch8.AttachmentSupport = (doc.XY_Plane, [""])
sketch8.MapMode = "FlatFace"
sketch8.AttachmentOffset = App.Placement(V(0, 0, 5), App.Rotation())
sketch8.addGeometry(Part.LineSegment(V(-47, 250, 0), V(-38, 250, 0)), False)
sketch8.addGeometry(Part.ArcOfCircle(Part.Circle(V(-42, 248, 0), V(0, 0, 1), 5), math.radians(30), math.radians(150)), False)
sketch8.addGeometry(Part.LineSegment(V(-132, 250, 0), V(-123, 250, 0)), False)
sketch8.addGeometry(Part.ArcOfCircle(Part.Circle(V(-128, 248, 0), V(0, 0, 1), 5), math.radians(30), math.radians(150)), False)
sketch8.addConstraint(Sketcher.Constraint("Coincident", 0, 1, 1, 2))
sketch8.addConstraint(Sketcher.Constraint("Coincident", 1, 1, 0, 2))
sketch8.addConstraint(Sketcher.Constraint("Coincident", 2, 1, 3, 2))
sketch8.addConstraint(Sketcher.Constraint("Coincident", 3, 1, 2, 2))
sketch8.addConstraint(Sketcher.Constraint("Horizontal", 0))
sketch8.addConstraint(Sketcher.Constraint("Horizontal", 2))
sketch8.addConstraint(Sketcher.Constraint("Equal", 1, 3))
sketch8.addConstraint(Sketcher.Constraint("Horizontal", 1, 3, 3, 3))
sketch8.addConstraint(Sketcher.Constraint("Horizontal", 1, 1, 2, 1))
sketch8.addConstraint(Sketcher.Constraint("Radius", 1, Q("5 mm")))
sketch8.addConstraint(Sketcher.Constraint("DistanceY", -1, 1, 0, 1, Q("250 mm")))
sketch8.addConstraint(Sketcher.Constraint("DistanceX", 3, 3, 1, 3, Q("85 mm")))
sketch8.addConstraint(Sketcher.Constraint("DistanceX", 1, 3, -1, 1, Q("42.5 mm")))
sketch8.addConstraint(Sketcher.Constraint("DistanceY", -1, 1, 1, 3, Q("247.5 mm")))
pad4 = doc.addObject("PartDesign::Pad", "Pad003")
body.addObject(pad4)
pad4.Profile = sketch8
pad4.Length = 5
pad4.Reversed = True

# Sketch on XY plane
sketch9 = doc.addObject("Sketcher::SketchObject", "Sketch008")
body.addObject(sketch9)
sketch9.AttachmentSupport = (doc.XY_Plane, [""])
sketch9.MapMode = "FlatFace"
sketch9.AttachmentOffset = App.Placement(V(0, 0, 5), App.Rotation())
sketch9.addGeometry(Part.Circle(V(-80.5, 22.5, 0), V(0, 0, 1), 2), False)
sketch9.addGeometry(Part.Circle(V(-80.5, 62.5, 0), V(0, 0, 1), 2), False)
sketch9.addGeometry(Part.Circle(V(-80.5, 102.5, 0), V(0, 0, 1), 2), False)
sketch9.addGeometry(Part.Circle(V(-80.5, 142.5, 0), V(0, 0, 1), 2), False)
sketch9.addGeometry(Part.Circle(V(-80.5, 182.5, 0), V(0, 0, 1), 2), False)
sketch9.addGeometry(Part.Circle(V(-80.5, 222.5, 0), V(0, 0, 1), 2), False)
sketch9.addGeometry(Part.Circle(V(-89.5, 222.5, 0), V(0, 0, 1), 2), False)
sketch9.addGeometry(Part.Circle(V(-89.5, 182.5, 0), V(0, 0, 1), 2), False)
sketch9.addGeometry(Part.Circle(V(-89.5, 142.5, 0), V(0, 0, 1), 2), False)
sketch9.addGeometry(Part.Circle(V(-89.5, 102.5, 0), V(0, 0, 1), 2), False)
sketch9.addGeometry(Part.Circle(V(-89.5, 62.5, 0), V(0, 0, 1), 2), False)
sketch9.addGeometry(Part.Circle(V(-89.5, 22.5, 0), V(0, 0, 1), 2), False)
sketch9.addConstraint(Sketcher.Constraint("Equal", 0, 1))
sketch9.addConstraint(Sketcher.Constraint("Equal", 1, 2))
sketch9.addConstraint(Sketcher.Constraint("Equal", 2, 3))
sketch9.addConstraint(Sketcher.Constraint("Equal", 3, 4))
sketch9.addConstraint(Sketcher.Constraint("Equal", 4, 5))
sketch9.addConstraint(Sketcher.Constraint("Equal", 5, 6))
sketch9.addConstraint(Sketcher.Constraint("Equal", 6, 7))
sketch9.addConstraint(Sketcher.Constraint("Equal", 7, 8))
sketch9.addConstraint(Sketcher.Constraint("Equal", 8, 9))
sketch9.addConstraint(Sketcher.Constraint("Equal", 9, 10))
sketch9.addConstraint(Sketcher.Constraint("Equal", 10, 11))
sketch9.addConstraint(Sketcher.Constraint("Horizontal", 5, 3, 6, 3))
sketch9.addConstraint(Sketcher.Constraint("Horizontal", 4, 3, 7, 3))
sketch9.addConstraint(Sketcher.Constraint("Horizontal", 3, 3, 8, 3))
sketch9.addConstraint(Sketcher.Constraint("Horizontal", 2, 3, 9, 3))
sketch9.addConstraint(Sketcher.Constraint("Horizontal", 1, 3, 10, 3))
sketch9.addConstraint(Sketcher.Constraint("Horizontal", 0, 3, 11, 3))
sketch9.addConstraint(Sketcher.Constraint("Vertical", 0, 3, 1, 3))
sketch9.addConstraint(Sketcher.Constraint("Vertical", 1, 3, 2, 3))
sketch9.addConstraint(Sketcher.Constraint("Vertical", 2, 3, 3, 3))
sketch9.addConstraint(Sketcher.Constraint("Vertical", 3, 3, 4, 3))
sketch9.addConstraint(Sketcher.Constraint("Vertical", 4, 3, 5, 3))
sketch9.addConstraint(Sketcher.Constraint("Vertical", 6, 3, 7, 3))
sketch9.addConstraint(Sketcher.Constraint("Vertical", 7, 3, 8, 3))
sketch9.addConstraint(Sketcher.Constraint("Vertical", 8, 3, 9, 3))
sketch9.addConstraint(Sketcher.Constraint("Vertical", 9, 3, 10, 3))
sketch9.addConstraint(Sketcher.Constraint("Vertical", 10, 3, 11, 3))
sketch9.addConstraint(Sketcher.Constraint("Diameter", 0, Q("4 mm")))
sketch9.addConstraint(Sketcher.Constraint("DistanceY", 0, 3, 1, 3, Q("40 mm")))
sketch9.addConstraint(Sketcher.Constraint("DistanceY", 1, 3, 2, 3, Q("40 mm")))
sketch9.addConstraint(Sketcher.Constraint("DistanceY", 2, 3, 3, 3, Q("40 mm")))
sketch9.addConstraint(Sketcher.Constraint("DistanceY", 3, 3, 4, 3, Q("40 mm")))
sketch9.addConstraint(Sketcher.Constraint("DistanceY", 4, 3, 5, 3, Q("40 mm")))
sketch9.addConstraint(Sketcher.Constraint("DistanceX", 6, 3, 5, 3, Q("9 mm")))
sketch9.addConstraint(Sketcher.Constraint("DistanceX", 0, 3, -1, 1, Q("80.5 mm")))
sketch9.addConstraint(Sketcher.Constraint("DistanceY", -1, 1, 0, 3, Q("22.5 mm")))
pocket5 = doc.addObject("PartDesign::Pocket", "Pocket004")
body.addObject(pocket5)
pocket5.Profile = sketch9
pocket5.Length = 10

# Sketch on YZ plane
sketch10 = doc.addObject("Sketcher::SketchObject", "Sketch009")
body.addObject(sketch10)
sketch10.AttachmentSupport = (doc.YZ_Plane, [""])
sketch10.MapMode = "FlatFace"
sketch10.AttachmentOffset = App.Placement(V(0, 0, -45), App.Rotation())
sketch10.addGeometry(Part.LineSegment(V(-22, 0, 0), V(-28, 0, 0)), False)
sketch10.addGeometry(Part.LineSegment(V(-28, 0, 0), V(-28, 5, 0)), False)
sketch10.addGeometry(Part.LineSegment(V(-28, 5, 0), V(-22, 5, 0)), False)
sketch10.addGeometry(Part.LineSegment(V(-22, 5, 0), V(-22, 0, 0)), False)
sketch10.addConstraint(Sketcher.Constraint("Coincident", 0, 2, 1, 1))
sketch10.addConstraint(Sketcher.Constraint("Coincident", 1, 2, 2, 1))
sketch10.addConstraint(Sketcher.Constraint("Coincident", 2, 2, 3, 1))
sketch10.addConstraint(Sketcher.Constraint("Coincident", 3, 2, 0, 1))
sketch10.addConstraint(Sketcher.Constraint("Horizontal", 0))
sketch10.addConstraint(Sketcher.Constraint("Vertical", 1))
sketch10.addConstraint(Sketcher.Constraint("Horizontal", 2))
sketch10.addConstraint(Sketcher.Constraint("Vertical", 3))
sketch10.addConstraint(Sketcher.Constraint("PointOnObject", 0, 2, -1))
sketch10.addConstraint(Sketcher.Constraint("Equal", 2, 1))
sketch10.addConstraint(Sketcher.Constraint("DistanceX", 0, 2, 0, 1, Q("5 mm")))
sketch10.addConstraint(Sketcher.Constraint("DistanceX", 0, 2, -1, 1, Q("27.5 mm")))
pad5 = doc.addObject("PartDesign::Pad", "Pad004")
body.addObject(pad5)
pad5.Profile = sketch10
pad5.Length = 0.1
pad5.Reversed = True

# Sketch on YZ plane
sketch11 = doc.addObject("Sketcher::SketchObject", "Sketch010")
body.addObject(sketch11)
sketch11.AttachmentSupport = (doc.YZ_Plane, [""])
sketch11.MapMode = "FlatFace"
sketch11.AttachmentOffset = App.Placement(V(0, 0, -125), App.Rotation())
sketch11.addGeometry(Part.LineSegment(V(-22, 5, 0), V(-28, 5, 0)), False)
sketch11.addGeometry(Part.LineSegment(V(-28, 5, 0), V(-28, 0, 0)), False)
sketch11.addGeometry(Part.LineSegment(V(-28, 0, 0), V(-22, 0, 0)), False)
sketch11.addGeometry(Part.LineSegment(V(-22, 0, 0), V(-22, 5, 0)), False)
sketch11.addConstraint(Sketcher.Constraint("Coincident", 0, 2, 1, 1))
sketch11.addConstraint(Sketcher.Constraint("Coincident", 1, 2, 2, 1))
sketch11.addConstraint(Sketcher.Constraint("Coincident", 2, 2, 3, 1))
sketch11.addConstraint(Sketcher.Constraint("Coincident", 3, 2, 0, 1))
sketch11.addConstraint(Sketcher.Constraint("Horizontal", 0))
sketch11.addConstraint(Sketcher.Constraint("Vertical", 1))
sketch11.addConstraint(Sketcher.Constraint("Horizontal", 2))
sketch11.addConstraint(Sketcher.Constraint("Vertical", 3))
sketch11.addConstraint(Sketcher.Constraint("PointOnObject", 1, 2, -1))
sketch11.addConstraint(Sketcher.Constraint("Equal", 2, 1))
sketch11.addConstraint(Sketcher.Constraint("DistanceX", 0, 2, 0, 1, Q("5 mm")))
sketch11.addConstraint(Sketcher.Constraint("DistanceX", 0, 2, -1, 1, Q("27.5 mm")))
pad6 = doc.addObject("PartDesign::Pad", "Pad005")
body.addObject(pad6)
pad6.Profile = sketch11
pad6.Length = 0.1

doc.recompute()
